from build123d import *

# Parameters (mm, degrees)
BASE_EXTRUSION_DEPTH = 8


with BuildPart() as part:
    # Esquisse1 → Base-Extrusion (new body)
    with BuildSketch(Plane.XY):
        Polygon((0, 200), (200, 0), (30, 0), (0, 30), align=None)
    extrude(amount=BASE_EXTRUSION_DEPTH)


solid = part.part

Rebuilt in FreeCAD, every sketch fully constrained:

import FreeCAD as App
import Part
import Sketcher
from FreeCAD import Vector


def add_polygon(sketch, points):
    """Adds a closed chain of lines whose ends are joined by coincident constraints."""
    first, n = sketch.GeometryCount, len(points)
    for a, b in zip(points, points[1:] + points[:1]):
        sketch.addGeometry(Part.LineSegment(App.Vector(*a, 0), App.Vector(*b, 0)), False)
    for i in range(n):
        sketch.addConstraint(Sketcher.Constraint("Coincident", first + i, 2, first + (i + 1) % n, 1))

doc = App.newDocument("Part")
body = doc.addObject("PartDesign::Body", "Body")

# Sketch on XY plane
sketch1 = body.newObject("Sketcher::SketchObject", "Sketch")
sketch1.AttachmentSupport = (doc.getObject("XY_Plane"), [""])
sketch1.MapMode = "FlatFace"
add_polygon(sketch1, [(200, 0), (0, 200), (0, 30), (30, 0)])  # lines 0-3
sketch1.addConstraint([
    Sketcher.Constraint("Vertical", 1),
    Sketcher.Constraint("Horizontal", 3),
    Sketcher.Constraint("PointOnObject", 0, 2, -2),
    Sketcher.Constraint("PointOnObject", 2, 2, -1),
    Sketcher.Constraint("Parallel", 0, 2),
    Sketcher.Constraint("Equal", 3, 1),
    Sketcher.Constraint("DistanceX", 3, 1, 3, 2, 170.0),
    Sketcher.Constraint("DistanceY", -1, 1, 0, 2, 200.0),
])
pad1 = body.newObject("PartDesign::Pad", "Pad")
pad1.Profile = sketch1
pad1.Length = 8

doc.recompute()
